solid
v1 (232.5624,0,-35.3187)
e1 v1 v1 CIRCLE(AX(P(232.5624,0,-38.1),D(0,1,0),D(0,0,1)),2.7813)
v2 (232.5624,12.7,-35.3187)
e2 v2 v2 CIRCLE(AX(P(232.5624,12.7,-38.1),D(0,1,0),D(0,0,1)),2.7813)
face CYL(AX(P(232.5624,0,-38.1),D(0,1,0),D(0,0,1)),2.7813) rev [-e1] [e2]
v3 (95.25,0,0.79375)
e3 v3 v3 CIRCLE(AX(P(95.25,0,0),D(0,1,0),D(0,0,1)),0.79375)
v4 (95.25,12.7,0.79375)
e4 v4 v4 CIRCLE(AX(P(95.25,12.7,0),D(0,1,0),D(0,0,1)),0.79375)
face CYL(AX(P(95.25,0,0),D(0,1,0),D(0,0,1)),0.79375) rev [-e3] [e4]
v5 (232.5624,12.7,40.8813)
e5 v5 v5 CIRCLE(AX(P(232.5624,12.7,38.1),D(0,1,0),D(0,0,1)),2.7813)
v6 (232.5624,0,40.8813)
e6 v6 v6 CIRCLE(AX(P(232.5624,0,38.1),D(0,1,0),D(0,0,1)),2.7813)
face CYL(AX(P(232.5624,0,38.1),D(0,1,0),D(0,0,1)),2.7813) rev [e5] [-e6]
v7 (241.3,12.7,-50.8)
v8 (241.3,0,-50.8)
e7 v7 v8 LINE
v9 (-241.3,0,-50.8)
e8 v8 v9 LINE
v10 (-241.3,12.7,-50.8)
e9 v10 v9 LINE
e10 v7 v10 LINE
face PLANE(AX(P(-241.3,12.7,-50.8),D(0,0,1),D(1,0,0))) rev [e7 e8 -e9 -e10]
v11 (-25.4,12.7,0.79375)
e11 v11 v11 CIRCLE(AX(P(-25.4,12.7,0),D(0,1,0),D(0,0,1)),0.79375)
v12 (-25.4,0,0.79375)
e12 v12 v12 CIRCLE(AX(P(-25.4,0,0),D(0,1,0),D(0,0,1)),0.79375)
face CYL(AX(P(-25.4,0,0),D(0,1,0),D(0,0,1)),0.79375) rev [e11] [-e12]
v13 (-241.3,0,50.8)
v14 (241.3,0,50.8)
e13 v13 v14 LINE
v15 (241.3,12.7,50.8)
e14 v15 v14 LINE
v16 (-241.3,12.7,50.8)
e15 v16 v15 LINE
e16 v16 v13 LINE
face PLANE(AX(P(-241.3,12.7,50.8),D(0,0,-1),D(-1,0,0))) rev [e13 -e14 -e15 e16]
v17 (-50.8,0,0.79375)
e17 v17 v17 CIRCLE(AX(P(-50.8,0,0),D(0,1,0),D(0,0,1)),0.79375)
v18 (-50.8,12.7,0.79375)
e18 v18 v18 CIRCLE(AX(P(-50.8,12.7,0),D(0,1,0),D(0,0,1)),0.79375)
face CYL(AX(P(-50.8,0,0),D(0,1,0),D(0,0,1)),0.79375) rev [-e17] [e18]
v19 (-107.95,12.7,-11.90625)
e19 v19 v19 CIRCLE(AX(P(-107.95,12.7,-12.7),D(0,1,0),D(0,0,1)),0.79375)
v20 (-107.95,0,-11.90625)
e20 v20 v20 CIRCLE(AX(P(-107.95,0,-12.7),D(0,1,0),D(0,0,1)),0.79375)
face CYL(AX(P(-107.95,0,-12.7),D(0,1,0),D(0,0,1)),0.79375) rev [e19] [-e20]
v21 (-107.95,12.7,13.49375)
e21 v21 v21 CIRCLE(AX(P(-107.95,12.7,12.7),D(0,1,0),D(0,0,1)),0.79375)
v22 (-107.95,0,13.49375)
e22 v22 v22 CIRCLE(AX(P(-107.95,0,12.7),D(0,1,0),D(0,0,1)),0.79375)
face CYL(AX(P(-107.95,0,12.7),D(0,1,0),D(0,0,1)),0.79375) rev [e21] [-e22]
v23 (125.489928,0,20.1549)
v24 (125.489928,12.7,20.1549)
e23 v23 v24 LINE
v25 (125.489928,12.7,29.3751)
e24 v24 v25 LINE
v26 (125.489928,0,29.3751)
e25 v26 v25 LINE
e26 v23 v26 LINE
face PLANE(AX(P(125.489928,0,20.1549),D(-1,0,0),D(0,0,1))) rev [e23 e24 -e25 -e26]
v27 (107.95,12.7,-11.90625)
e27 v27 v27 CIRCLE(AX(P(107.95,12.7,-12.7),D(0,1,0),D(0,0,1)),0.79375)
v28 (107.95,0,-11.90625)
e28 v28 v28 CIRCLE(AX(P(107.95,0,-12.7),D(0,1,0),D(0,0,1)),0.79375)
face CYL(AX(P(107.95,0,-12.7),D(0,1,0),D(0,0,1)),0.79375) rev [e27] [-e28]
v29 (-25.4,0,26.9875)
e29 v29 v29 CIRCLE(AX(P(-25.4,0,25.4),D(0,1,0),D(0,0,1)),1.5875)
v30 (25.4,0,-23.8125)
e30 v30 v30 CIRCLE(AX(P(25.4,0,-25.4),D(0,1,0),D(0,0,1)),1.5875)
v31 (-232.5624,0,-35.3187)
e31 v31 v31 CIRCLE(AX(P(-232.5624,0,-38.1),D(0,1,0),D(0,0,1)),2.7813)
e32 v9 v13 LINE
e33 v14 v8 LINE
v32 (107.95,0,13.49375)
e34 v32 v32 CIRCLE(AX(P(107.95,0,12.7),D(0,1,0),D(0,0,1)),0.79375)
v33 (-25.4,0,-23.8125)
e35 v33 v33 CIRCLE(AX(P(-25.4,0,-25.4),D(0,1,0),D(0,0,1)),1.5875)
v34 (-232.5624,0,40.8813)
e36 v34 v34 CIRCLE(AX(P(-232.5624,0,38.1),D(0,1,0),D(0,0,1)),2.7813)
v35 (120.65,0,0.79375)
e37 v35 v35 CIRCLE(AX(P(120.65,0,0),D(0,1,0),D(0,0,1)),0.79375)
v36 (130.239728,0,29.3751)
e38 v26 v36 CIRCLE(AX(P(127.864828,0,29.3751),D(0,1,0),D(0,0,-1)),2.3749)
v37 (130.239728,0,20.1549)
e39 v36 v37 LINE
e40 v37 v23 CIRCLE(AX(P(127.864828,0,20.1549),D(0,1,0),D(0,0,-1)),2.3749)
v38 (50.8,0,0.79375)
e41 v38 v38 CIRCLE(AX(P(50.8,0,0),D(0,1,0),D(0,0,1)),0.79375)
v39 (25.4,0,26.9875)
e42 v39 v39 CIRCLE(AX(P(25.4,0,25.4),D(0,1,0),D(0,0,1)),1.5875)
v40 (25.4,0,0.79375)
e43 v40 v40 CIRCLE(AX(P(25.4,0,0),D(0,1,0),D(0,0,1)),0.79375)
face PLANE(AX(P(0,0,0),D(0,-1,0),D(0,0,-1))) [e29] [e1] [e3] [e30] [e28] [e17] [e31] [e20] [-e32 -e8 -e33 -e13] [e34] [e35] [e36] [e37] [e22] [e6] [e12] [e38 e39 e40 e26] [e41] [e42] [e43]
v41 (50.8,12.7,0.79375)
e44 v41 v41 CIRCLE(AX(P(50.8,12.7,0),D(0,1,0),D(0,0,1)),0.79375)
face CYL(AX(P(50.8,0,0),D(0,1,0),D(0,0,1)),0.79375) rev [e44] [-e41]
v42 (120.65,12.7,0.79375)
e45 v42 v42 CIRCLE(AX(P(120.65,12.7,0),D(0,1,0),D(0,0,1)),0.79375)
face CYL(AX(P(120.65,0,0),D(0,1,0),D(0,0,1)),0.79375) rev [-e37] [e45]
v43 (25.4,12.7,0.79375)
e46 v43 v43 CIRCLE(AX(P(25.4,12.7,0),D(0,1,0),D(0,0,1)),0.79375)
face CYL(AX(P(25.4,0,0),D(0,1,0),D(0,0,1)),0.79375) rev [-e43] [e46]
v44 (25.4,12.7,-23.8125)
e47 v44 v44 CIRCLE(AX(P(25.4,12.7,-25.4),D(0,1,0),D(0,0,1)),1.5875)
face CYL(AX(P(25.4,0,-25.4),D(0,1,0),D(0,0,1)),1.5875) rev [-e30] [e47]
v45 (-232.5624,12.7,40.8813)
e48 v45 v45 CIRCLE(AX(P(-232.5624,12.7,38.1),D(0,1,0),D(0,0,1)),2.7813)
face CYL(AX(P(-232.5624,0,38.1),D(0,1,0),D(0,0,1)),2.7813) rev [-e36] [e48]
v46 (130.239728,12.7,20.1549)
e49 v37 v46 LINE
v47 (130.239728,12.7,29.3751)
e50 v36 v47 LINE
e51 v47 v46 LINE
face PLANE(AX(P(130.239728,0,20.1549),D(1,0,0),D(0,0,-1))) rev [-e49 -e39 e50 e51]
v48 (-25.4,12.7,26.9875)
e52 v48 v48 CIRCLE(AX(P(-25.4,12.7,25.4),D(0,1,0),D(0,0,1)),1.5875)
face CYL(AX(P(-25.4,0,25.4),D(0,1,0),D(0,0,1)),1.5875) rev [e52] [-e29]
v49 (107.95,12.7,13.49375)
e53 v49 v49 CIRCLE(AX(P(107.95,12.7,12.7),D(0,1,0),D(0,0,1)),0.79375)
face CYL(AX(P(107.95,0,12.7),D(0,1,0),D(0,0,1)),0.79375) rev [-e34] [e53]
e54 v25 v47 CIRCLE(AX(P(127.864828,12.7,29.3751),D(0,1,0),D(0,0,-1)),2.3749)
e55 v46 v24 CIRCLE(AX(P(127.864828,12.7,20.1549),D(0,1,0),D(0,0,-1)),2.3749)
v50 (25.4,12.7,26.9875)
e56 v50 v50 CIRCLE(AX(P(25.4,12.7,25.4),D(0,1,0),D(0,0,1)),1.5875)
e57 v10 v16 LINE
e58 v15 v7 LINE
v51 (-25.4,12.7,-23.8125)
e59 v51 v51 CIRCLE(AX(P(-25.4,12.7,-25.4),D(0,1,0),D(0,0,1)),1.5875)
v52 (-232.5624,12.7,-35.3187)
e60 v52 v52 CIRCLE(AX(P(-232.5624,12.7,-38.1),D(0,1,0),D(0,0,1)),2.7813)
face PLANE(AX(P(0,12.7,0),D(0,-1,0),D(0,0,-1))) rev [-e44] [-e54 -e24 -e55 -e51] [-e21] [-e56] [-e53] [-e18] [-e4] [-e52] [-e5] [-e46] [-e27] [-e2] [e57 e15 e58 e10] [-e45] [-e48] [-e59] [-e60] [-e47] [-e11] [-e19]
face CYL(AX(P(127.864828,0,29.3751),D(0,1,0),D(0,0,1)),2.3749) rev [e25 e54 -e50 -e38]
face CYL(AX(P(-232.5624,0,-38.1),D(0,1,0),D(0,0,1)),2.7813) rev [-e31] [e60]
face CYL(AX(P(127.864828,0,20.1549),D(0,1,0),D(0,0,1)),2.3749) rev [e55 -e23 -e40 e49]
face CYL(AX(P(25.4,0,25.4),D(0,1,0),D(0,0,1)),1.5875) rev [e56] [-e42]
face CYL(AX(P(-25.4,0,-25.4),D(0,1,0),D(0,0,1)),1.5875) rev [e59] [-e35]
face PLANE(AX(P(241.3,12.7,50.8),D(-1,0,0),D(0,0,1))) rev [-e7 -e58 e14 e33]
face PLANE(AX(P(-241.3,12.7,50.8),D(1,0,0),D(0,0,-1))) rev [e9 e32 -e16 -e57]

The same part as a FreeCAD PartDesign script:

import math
import FreeCAD as App
import Part
import Sketcher
from FreeCAD import Vector
Q = App.Units.Quantity


def add_polygon(sketch, points):
    """Adds a closed chain of lines whose ends are joined by coincident constraints."""
    first, n = sketch.GeometryCount, len(points)
    for a, b in zip(points, points[1:] + points[:1]):
        sketch.addGeometry(Part.LineSegment(App.Vector(*a, 0), App.Vector(*b, 0)), False)
    for i in range(n):
        sketch.addConstraint(Sketcher.Constraint("Coincident", first + i, 2, first + (i + 1) % n, 1))

doc = App.newDocument("Part")
body = doc.addObject("PartDesign::Body", "Body")

# Sketch on XZ plane
sketch1 = body.newObject("Sketcher::SketchObject", "Sketch")
sketch1.AttachmentSupport = (doc.getObject("XZ_Plane"), [""])
sketch1.MapMode = "FlatFace"
add_polygon(sketch1, [(-241, -51), (-241, 51), (241, 51), (241, -51)])  # lines 0-3
sketch1.addConstraint([
    Sketcher.Constraint("Vertical", 0),
    Sketcher.Constraint("Horizontal", 1),
    Sketcher.Constraint("Vertical", 2),
    Sketcher.Constraint("Horizontal", 3),
    Sketcher.Constraint("Symmetric", 0, 2, 2, 2, -1, 1),
    Sketcher.Constraint("DistanceX", 1, 1, 1, 2, Q("19 in")),
    Sketcher.Constraint("DistanceY", 0, 1, 0, 2, Q("4 in")),
])
pad1 = body.newObject("PartDesign::Pad", "Pad")
pad1.Profile = sketch1
pad1.Length = Q("0.5 in")
pad1.Reversed = True

# Sketch on XZ plane
sketch2 = body.newObject("Sketcher::SketchObject", "Sketch001")
sketch2.AttachmentSupport = (doc.getObject("XZ_Plane"), [""])
sketch2.MapMode = "FlatFace"
sketch2.AttachmentOffset = App.Placement(Vector(0, 0, -0.5 * 25.4), App.Rotation())
sketch2.addGeometry([
    Part.Circle(Vector(-232.6, -38.1, 0), Vector(0, 0, 1), 2.8),
    Part.Circle(Vector(-232.6, 38.1, 0), Vector(0, 0, 1), 2.8),
    Part.Circle(Vector(232.6, -38.1, 0), Vector(0, 0, 1), 2.8),
    Part.Circle(Vector(232.6, 38.1, 0), Vector(0, 0, 1), 2.8),
], False)
sketch2.addConstraint([
    Sketcher.Constraint("Equal", 0, 1),
    Sketcher.Constraint("Equal", 1, 2),
    Sketcher.Constraint("Equal", 2, 3),
    Sketcher.Constraint("Symmetric", 1, 3, 2, 3, -1, 1),
    Sketcher.Constraint("Symmetric", 0, 3, 3, 3, -1, 1),
    Sketcher.Constraint("Symmetric", 0, 3, 2, 3, -2),
    Sketcher.Constraint("Diameter", 0, Q("0.219 in")),
    Sketcher.Constraint("DistanceY", 0, 3, 1, 3, Q("3 in")),
    Sketcher.Constraint("DistanceX", 0, 3, -1, 1, Q("9.156 in")),
])
pocket1 = body.newObject("PartDesign::Pocket", "Pocket")
pocket1.Profile = sketch2
pocket1.Type = "ThroughAll"
pocket1.Reversed = True

# Sketch on XZ plane
sketch3 = body.newObject("Sketcher::SketchObject", "Sketch002")
sketch3.AttachmentSupport = (doc.getObject("XZ_Plane"), [""])
sketch3.MapMode = "FlatFace"
sketch3.AttachmentOffset = App.Placement(Vector(0, 0, -0.5 * 25.4), App.Rotation())
sketch3.addGeometry([
    Part.Circle(Vector(-25.4, -25.4, 0), Vector(0, 0, 1), 1.6),
    Part.Circle(Vector(25.4, -25.4, 0), Vector(0, 0, 1), 1.6),
    Part.Circle(Vector(25.4, 25.4, 0), Vector(0, 0, 1), 1.6),
    Part.Circle(Vector(-25.4, 25.4, 0), Vector(0, 0, 1), 1.6),
], False)
sketch3.addConstraint([
    Sketcher.Constraint("Equal", 0, 1),
    Sketcher.Constraint("Equal", 1, 2),
    Sketcher.Constraint("Equal", 2, 3),
    Sketcher.Constraint("Symmetric", 0, 3, 2, 3, -1, 1),
    Sketcher.Constraint("Symmetric", 1, 3, 3, 3, -1, 1),
    Sketcher.Constraint("Symmetric", 0, 3, 1, 3, -2),
    Sketcher.Constraint("Diameter", 0, Q("0.125 in")),
    Sketcher.Constraint("DistanceX", 0, 3, -1, 1, Q("1 in")),
    Sketcher.Constraint("DistanceY", 0, 3, -1, 1, Q("1 in")),
])
pocket2 = body.newObject("PartDesign::Pocket", "Pocket001")
pocket2.Profile = sketch3
pocket2.Type = "ThroughAll"
pocket2.Reversed = True

# Sketch on XZ plane
sketch4 = body.newObject("Sketcher::SketchObject", "Sketch003")
sketch4.AttachmentSupport = (doc.getObject("XZ_Plane"), [""])
sketch4.MapMode = "FlatFace"
sketch4.AttachmentOffset = App.Placement(Vector(0, 0, -0.5 * 25.4), App.Rotation())
sketch4.addGeometry([
    Part.Circle(Vector(-25.4, 0, 0), Vector(0, 0, 1), 0.8),  # 0
    Part.Circle(Vector(25.4, 0, 0), Vector(0, 0, 1), 0.8),  # 1
    Part.Circle(Vector(-50.8, 0, 0), Vector(0, 0, 1), 0.8),  # 2
    Part.Circle(Vector(50.8, 0, 0), Vector(0, 0, 1), 0.8),  # 3
    Part.Circle(Vector(-108, -12.7, 0), Vector(0, 0, 1), 0.8),  # 4
    Part.Circle(Vector(-108, 12.7, 0), Vector(0, 0, 1), 0.8),  # 5
    Part.Circle(Vector(108, 12.7, 0), Vector(0, 0, 1), 0.8),  # 6
    Part.Circle(Vector(108, -12.7, 0), Vector(0, 0, 1), 0.8),  # 7
], False)
sketch4.addConstraint([
    Sketcher.Constraint("Equal", 0, 1),
    Sketcher.Constraint("Equal", 1, 2),
    Sketcher.Constraint("Equal", 2, 3),
    Sketcher.Constraint("Equal", 3, 4),
    Sketcher.Constraint("Equal", 4, 5),
    Sketcher.Constraint("Equal", 5, 6),
    Sketcher.Constraint("Equal", 6, 7),
    Sketcher.Constraint("Symmetric", 0, 3, 1, 3, -1, 1),
    Sketcher.Constraint("Symmetric", 2, 3, 3, 3, -1, 1),
    Sketcher.Constraint("Symmetric", 4, 3, 6, 3, -1, 1),
    Sketcher.Constraint("Symmetric", 5, 3, 7, 3, -1, 1),
    Sketcher.Constraint("Symmetric", 5, 3, 6, 3, -2),
    Sketcher.Constraint("PointOnObject", 0, 3, -1),
    Sketcher.Constraint("PointOnObject", 2, 3, -1),
    Sketcher.Constraint("Diameter", 0, Q("0.0625 in")),
    Sketcher.Constraint("DistanceX", 0, 3, -1, 1, Q("1 in")),
    Sketcher.Constraint("DistanceX", 2, 3, -1, 1, Q("2 in")),
    Sketcher.Constraint("DistanceY", 4, 3, 5, 3, Q("1 in")),
    Sketcher.Constraint("DistanceX", 5, 3, 6, 3, Q("8.5 in")),
])
pocket3 = body.newObject("PartDesign::Pocket", "Pocket002")
pocket3.Profile = sketch4
pocket3.Type = "ThroughAll"
pocket3.Reversed = True

# Sketch on XZ plane
sketch5 = body.newObject("Sketcher::SketchObject", "Sketch004")
sketch5.AttachmentSupport = (doc.getObject("XZ_Plane"), [""])
sketch5.MapMode = "FlatFace"
sketch5.AttachmentOffset = App.Placement(Vector(0, 0, -0.5 * 25.4), App.Rotation())
sketch5.addGeometry([
    Part.Circle(Vector(95.2, 0, 0), Vector(0, 0, 1), 0.8),
    Part.Circle(Vector(120.7, 0, 0), Vector(0, 0, 1), 0.8),
], False)
sketch5.addConstraint([
    Sketcher.Constraint("Equal", 0, 1),
    Sketcher.Constraint("PointOnObject", 0, 3, -1),
    Sketcher.Constraint("PointOnObject", 1, 3, -1),
    Sketcher.Constraint("Diameter", 0, Q("0.0625 in")),
    Sketcher.Constraint("DistanceX", 0, 3, 1, 3, Q("1 in")),
    Sketcher.Constraint("DistanceX", -1, 1, 0, 3, Q("3.75 in")),
])
pocket4 = body.newObject("PartDesign::Pocket", "Pocket003")
pocket4.Profile = sketch5
pocket4.Type = "ThroughAll"
pocket4.Reversed = True

# Sketch on XZ plane
sketch6 = body.newObject("Sketcher::SketchObject", "Sketch005")
sketch6.AttachmentSupport = (doc.getObject("XZ_Plane"), [""])
sketch6.MapMode = "FlatFace"
sketch6.AttachmentOffset = App.Placement(Vector(0, 0, -0.5 * 25.4), App.Rotation())
sketch6.addGeometry([
    Part.LineSegment(Vector(125.5, 20.2, 0), Vector(125.5, 29.4, 0)),
    Part.ArcOfCircle(Part.Circle(Vector(127.9, 29.4, 0), Vector(0, 0, 1), 2.4), math.radians(0), math.radians(180)),
    Part.LineSegment(Vector(130.2, 29.4, 0), Vector(130.2, 20.2, 0)),
    Part.ArcOfCircle(Part.Circle(Vector(127.9, 20.2, 0), Vector(0, 0, 1), 2.4), math.radians(180), math.radians(360)),
], False)
sketch6.addConstraint([
    Sketcher.Constraint("Tangent", 0, 2, 1, 2),
    Sketcher.Constraint("Tangent", 1, 1, 2, 1),
    Sketcher.Constraint("Tangent", 2, 2, 3, 2),
    Sketcher.Constraint("Tangent", 3, 1, 0, 1),
    Sketcher.Constraint("Vertical", 0),
    Sketcher.Constraint("Vertical", 2),
    Sketcher.Constraint("Radius", 1, Q("0.0935 in")),
    Sketcher.Constraint("DistanceY", 0, 1, 0, 2, Q("0.363 in")),
    Sketcher.Constraint("DistanceY", -1, 1, 1, 3, Q("1.1565 in")),
    Sketcher.Constraint("DistanceX", -1, 1, 1, 3, Q("127.864828 mm")),
])
pocket5 = body.newObject("PartDesign::Pocket", "Pocket004")
pocket5.Profile = sketch6
pocket5.Type = "ThroughAll"
pocket5.Reversed = True

doc.recompute()
